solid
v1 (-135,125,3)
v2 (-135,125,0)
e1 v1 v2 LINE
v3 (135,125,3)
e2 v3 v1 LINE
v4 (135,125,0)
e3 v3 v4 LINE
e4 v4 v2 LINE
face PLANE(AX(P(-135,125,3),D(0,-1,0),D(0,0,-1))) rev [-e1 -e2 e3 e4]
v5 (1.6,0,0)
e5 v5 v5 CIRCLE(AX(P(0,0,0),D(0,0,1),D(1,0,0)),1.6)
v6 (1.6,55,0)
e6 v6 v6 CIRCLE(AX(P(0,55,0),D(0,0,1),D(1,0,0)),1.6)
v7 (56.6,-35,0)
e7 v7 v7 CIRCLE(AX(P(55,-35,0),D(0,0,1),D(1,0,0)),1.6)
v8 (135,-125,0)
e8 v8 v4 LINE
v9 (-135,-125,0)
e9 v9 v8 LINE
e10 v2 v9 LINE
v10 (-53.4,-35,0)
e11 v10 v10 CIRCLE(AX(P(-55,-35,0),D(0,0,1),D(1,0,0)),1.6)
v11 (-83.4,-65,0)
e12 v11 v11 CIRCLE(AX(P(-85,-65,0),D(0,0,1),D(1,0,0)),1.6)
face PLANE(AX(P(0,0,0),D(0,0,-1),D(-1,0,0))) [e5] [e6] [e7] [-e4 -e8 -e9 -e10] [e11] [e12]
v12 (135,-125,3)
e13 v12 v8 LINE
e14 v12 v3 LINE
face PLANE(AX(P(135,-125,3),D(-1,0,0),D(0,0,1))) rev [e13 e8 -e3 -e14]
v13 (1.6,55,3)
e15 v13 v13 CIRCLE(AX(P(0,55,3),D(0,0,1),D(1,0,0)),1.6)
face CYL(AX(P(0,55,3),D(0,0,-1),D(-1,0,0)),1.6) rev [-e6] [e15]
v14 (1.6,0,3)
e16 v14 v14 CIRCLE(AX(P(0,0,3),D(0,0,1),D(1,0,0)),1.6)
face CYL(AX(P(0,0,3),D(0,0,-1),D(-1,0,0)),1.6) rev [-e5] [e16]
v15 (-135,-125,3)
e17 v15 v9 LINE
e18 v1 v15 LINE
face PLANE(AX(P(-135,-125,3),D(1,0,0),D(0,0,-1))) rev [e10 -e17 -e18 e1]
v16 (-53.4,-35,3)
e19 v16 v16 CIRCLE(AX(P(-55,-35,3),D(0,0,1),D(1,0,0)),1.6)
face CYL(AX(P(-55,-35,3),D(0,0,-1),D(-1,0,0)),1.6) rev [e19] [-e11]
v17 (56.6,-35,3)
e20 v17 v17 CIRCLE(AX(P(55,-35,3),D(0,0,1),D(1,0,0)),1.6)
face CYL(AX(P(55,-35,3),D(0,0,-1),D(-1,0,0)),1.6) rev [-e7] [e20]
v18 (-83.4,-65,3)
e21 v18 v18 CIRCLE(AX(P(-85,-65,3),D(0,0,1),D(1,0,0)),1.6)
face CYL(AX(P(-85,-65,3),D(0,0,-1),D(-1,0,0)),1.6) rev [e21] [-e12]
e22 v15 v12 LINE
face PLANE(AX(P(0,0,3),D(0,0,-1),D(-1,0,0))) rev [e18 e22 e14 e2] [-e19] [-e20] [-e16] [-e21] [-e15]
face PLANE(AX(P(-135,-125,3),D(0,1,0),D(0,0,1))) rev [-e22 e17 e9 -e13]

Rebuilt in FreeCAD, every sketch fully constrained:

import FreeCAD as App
import Part
import Sketcher
from FreeCAD import Vector
Q = App.Units.Quantity

doc = App.newDocument("Part")
body = doc.addObject("PartDesign::Body", "Body")

# Sketch on XY plane
sketch1 = doc.addObject("Sketcher::SketchObject", "Sketch")
body.addObject(sketch1)
sketch1.AttachmentSupport = (doc.XY_Plane, [""])
sketch1.MapMode = "FlatFace"
sketch1.addGeometry([
    Part.LineSegment(Vector(-135, 125, 0), Vector(-135, -125, 0)),  # 0
    Part.LineSegment(Vector(-135, -125, 0), Vector(135, -125, 0)),  # 1
    Part.LineSegment(Vector(135, -125, 0), Vector(135, 125, 0)),  # 2
    Part.LineSegment(Vector(135, 125, 0), Vector(-135, 125, 0)),  # 3
    Part.Circle(Vector(-85, -65, 0), Vector(0, 0, 1), 1.6),  # 4
    Part.Circle(Vector(-55, -35, 0), Vector(0, 0, 1), 1.6),  # 5
    Part.Circle(Vector(55, -35, 0), Vector(0, 0, 1), 1.6),  # 6
    Part.Circle(Vector(0, 0, 0), Vector(0, 0, 1), 1.6),  # 7
    Part.Circle(Vector(0, 55, 0), Vector(0, 0, 1), 1.6),  # 8
], False)
sketch1.addConstraint([
    Sketcher.Constraint("Coincident", 0, 2, 1, 1),
    Sketcher.Constraint("Coincident", 1, 2, 2, 1),
    Sketcher.Constraint("Coincident", 2, 2, 3, 1),
    Sketcher.Constraint("Coincident", 3, 2, 0, 1),
    Sketcher.Constraint("Vertical", 0),
    Sketcher.Constraint("Horizontal", 1),
    Sketcher.Constraint("Vertical", 2),
    Sketcher.Constraint("Horizontal", 3),
    Sketcher.Constraint("Coincident", 7, 3, -1, 1),
    Sketcher.Constraint("Equal", 4, 5),
    Sketcher.Constraint("Equal", 5, 6),
    Sketcher.Constraint("Equal", 6, 7),
    Sketcher.Constraint("Equal", 7, 8),
    Sketcher.Constraint("Symmetric", 0, 2, 2, 2, -1, 1),
    Sketcher.Constraint("Symmetric", 5, 3, 6, 3, -2),
    Sketcher.Constraint("PointOnObject", 8, 3, -2),
    Sketcher.Constraint("Diameter", 4, Q("3.2 mm")),
    Sketcher.Constraint("DistanceX", 1, 1, 1, 2, Q("270 mm")),
    Sketcher.Constraint("DistanceY", 0, 2, 0, 1, Q("250 mm")),
    Sketcher.Constraint("DistanceX", 4, 3, -1, 1, Q("85 mm")),
    Sketcher.Constraint("DistanceY", 4, 3, -1, 1, Q("65 mm")),
    Sketcher.Constraint("DistanceX", 5, 3, -1, 1, Q("55 mm")),
    Sketcher.Constraint("DistanceY", 5, 3, -1, 1, Q("35 mm")),
    Sketcher.Constraint("DistanceY", -1, 1, 8, 3, Q("55 mm")),
])
pad1 = doc.addObject("PartDesign::Pad", "Pad")
body.addObject(pad1)
pad1.Profile = sketch1
pad1.Length = 3

doc.recompute()
